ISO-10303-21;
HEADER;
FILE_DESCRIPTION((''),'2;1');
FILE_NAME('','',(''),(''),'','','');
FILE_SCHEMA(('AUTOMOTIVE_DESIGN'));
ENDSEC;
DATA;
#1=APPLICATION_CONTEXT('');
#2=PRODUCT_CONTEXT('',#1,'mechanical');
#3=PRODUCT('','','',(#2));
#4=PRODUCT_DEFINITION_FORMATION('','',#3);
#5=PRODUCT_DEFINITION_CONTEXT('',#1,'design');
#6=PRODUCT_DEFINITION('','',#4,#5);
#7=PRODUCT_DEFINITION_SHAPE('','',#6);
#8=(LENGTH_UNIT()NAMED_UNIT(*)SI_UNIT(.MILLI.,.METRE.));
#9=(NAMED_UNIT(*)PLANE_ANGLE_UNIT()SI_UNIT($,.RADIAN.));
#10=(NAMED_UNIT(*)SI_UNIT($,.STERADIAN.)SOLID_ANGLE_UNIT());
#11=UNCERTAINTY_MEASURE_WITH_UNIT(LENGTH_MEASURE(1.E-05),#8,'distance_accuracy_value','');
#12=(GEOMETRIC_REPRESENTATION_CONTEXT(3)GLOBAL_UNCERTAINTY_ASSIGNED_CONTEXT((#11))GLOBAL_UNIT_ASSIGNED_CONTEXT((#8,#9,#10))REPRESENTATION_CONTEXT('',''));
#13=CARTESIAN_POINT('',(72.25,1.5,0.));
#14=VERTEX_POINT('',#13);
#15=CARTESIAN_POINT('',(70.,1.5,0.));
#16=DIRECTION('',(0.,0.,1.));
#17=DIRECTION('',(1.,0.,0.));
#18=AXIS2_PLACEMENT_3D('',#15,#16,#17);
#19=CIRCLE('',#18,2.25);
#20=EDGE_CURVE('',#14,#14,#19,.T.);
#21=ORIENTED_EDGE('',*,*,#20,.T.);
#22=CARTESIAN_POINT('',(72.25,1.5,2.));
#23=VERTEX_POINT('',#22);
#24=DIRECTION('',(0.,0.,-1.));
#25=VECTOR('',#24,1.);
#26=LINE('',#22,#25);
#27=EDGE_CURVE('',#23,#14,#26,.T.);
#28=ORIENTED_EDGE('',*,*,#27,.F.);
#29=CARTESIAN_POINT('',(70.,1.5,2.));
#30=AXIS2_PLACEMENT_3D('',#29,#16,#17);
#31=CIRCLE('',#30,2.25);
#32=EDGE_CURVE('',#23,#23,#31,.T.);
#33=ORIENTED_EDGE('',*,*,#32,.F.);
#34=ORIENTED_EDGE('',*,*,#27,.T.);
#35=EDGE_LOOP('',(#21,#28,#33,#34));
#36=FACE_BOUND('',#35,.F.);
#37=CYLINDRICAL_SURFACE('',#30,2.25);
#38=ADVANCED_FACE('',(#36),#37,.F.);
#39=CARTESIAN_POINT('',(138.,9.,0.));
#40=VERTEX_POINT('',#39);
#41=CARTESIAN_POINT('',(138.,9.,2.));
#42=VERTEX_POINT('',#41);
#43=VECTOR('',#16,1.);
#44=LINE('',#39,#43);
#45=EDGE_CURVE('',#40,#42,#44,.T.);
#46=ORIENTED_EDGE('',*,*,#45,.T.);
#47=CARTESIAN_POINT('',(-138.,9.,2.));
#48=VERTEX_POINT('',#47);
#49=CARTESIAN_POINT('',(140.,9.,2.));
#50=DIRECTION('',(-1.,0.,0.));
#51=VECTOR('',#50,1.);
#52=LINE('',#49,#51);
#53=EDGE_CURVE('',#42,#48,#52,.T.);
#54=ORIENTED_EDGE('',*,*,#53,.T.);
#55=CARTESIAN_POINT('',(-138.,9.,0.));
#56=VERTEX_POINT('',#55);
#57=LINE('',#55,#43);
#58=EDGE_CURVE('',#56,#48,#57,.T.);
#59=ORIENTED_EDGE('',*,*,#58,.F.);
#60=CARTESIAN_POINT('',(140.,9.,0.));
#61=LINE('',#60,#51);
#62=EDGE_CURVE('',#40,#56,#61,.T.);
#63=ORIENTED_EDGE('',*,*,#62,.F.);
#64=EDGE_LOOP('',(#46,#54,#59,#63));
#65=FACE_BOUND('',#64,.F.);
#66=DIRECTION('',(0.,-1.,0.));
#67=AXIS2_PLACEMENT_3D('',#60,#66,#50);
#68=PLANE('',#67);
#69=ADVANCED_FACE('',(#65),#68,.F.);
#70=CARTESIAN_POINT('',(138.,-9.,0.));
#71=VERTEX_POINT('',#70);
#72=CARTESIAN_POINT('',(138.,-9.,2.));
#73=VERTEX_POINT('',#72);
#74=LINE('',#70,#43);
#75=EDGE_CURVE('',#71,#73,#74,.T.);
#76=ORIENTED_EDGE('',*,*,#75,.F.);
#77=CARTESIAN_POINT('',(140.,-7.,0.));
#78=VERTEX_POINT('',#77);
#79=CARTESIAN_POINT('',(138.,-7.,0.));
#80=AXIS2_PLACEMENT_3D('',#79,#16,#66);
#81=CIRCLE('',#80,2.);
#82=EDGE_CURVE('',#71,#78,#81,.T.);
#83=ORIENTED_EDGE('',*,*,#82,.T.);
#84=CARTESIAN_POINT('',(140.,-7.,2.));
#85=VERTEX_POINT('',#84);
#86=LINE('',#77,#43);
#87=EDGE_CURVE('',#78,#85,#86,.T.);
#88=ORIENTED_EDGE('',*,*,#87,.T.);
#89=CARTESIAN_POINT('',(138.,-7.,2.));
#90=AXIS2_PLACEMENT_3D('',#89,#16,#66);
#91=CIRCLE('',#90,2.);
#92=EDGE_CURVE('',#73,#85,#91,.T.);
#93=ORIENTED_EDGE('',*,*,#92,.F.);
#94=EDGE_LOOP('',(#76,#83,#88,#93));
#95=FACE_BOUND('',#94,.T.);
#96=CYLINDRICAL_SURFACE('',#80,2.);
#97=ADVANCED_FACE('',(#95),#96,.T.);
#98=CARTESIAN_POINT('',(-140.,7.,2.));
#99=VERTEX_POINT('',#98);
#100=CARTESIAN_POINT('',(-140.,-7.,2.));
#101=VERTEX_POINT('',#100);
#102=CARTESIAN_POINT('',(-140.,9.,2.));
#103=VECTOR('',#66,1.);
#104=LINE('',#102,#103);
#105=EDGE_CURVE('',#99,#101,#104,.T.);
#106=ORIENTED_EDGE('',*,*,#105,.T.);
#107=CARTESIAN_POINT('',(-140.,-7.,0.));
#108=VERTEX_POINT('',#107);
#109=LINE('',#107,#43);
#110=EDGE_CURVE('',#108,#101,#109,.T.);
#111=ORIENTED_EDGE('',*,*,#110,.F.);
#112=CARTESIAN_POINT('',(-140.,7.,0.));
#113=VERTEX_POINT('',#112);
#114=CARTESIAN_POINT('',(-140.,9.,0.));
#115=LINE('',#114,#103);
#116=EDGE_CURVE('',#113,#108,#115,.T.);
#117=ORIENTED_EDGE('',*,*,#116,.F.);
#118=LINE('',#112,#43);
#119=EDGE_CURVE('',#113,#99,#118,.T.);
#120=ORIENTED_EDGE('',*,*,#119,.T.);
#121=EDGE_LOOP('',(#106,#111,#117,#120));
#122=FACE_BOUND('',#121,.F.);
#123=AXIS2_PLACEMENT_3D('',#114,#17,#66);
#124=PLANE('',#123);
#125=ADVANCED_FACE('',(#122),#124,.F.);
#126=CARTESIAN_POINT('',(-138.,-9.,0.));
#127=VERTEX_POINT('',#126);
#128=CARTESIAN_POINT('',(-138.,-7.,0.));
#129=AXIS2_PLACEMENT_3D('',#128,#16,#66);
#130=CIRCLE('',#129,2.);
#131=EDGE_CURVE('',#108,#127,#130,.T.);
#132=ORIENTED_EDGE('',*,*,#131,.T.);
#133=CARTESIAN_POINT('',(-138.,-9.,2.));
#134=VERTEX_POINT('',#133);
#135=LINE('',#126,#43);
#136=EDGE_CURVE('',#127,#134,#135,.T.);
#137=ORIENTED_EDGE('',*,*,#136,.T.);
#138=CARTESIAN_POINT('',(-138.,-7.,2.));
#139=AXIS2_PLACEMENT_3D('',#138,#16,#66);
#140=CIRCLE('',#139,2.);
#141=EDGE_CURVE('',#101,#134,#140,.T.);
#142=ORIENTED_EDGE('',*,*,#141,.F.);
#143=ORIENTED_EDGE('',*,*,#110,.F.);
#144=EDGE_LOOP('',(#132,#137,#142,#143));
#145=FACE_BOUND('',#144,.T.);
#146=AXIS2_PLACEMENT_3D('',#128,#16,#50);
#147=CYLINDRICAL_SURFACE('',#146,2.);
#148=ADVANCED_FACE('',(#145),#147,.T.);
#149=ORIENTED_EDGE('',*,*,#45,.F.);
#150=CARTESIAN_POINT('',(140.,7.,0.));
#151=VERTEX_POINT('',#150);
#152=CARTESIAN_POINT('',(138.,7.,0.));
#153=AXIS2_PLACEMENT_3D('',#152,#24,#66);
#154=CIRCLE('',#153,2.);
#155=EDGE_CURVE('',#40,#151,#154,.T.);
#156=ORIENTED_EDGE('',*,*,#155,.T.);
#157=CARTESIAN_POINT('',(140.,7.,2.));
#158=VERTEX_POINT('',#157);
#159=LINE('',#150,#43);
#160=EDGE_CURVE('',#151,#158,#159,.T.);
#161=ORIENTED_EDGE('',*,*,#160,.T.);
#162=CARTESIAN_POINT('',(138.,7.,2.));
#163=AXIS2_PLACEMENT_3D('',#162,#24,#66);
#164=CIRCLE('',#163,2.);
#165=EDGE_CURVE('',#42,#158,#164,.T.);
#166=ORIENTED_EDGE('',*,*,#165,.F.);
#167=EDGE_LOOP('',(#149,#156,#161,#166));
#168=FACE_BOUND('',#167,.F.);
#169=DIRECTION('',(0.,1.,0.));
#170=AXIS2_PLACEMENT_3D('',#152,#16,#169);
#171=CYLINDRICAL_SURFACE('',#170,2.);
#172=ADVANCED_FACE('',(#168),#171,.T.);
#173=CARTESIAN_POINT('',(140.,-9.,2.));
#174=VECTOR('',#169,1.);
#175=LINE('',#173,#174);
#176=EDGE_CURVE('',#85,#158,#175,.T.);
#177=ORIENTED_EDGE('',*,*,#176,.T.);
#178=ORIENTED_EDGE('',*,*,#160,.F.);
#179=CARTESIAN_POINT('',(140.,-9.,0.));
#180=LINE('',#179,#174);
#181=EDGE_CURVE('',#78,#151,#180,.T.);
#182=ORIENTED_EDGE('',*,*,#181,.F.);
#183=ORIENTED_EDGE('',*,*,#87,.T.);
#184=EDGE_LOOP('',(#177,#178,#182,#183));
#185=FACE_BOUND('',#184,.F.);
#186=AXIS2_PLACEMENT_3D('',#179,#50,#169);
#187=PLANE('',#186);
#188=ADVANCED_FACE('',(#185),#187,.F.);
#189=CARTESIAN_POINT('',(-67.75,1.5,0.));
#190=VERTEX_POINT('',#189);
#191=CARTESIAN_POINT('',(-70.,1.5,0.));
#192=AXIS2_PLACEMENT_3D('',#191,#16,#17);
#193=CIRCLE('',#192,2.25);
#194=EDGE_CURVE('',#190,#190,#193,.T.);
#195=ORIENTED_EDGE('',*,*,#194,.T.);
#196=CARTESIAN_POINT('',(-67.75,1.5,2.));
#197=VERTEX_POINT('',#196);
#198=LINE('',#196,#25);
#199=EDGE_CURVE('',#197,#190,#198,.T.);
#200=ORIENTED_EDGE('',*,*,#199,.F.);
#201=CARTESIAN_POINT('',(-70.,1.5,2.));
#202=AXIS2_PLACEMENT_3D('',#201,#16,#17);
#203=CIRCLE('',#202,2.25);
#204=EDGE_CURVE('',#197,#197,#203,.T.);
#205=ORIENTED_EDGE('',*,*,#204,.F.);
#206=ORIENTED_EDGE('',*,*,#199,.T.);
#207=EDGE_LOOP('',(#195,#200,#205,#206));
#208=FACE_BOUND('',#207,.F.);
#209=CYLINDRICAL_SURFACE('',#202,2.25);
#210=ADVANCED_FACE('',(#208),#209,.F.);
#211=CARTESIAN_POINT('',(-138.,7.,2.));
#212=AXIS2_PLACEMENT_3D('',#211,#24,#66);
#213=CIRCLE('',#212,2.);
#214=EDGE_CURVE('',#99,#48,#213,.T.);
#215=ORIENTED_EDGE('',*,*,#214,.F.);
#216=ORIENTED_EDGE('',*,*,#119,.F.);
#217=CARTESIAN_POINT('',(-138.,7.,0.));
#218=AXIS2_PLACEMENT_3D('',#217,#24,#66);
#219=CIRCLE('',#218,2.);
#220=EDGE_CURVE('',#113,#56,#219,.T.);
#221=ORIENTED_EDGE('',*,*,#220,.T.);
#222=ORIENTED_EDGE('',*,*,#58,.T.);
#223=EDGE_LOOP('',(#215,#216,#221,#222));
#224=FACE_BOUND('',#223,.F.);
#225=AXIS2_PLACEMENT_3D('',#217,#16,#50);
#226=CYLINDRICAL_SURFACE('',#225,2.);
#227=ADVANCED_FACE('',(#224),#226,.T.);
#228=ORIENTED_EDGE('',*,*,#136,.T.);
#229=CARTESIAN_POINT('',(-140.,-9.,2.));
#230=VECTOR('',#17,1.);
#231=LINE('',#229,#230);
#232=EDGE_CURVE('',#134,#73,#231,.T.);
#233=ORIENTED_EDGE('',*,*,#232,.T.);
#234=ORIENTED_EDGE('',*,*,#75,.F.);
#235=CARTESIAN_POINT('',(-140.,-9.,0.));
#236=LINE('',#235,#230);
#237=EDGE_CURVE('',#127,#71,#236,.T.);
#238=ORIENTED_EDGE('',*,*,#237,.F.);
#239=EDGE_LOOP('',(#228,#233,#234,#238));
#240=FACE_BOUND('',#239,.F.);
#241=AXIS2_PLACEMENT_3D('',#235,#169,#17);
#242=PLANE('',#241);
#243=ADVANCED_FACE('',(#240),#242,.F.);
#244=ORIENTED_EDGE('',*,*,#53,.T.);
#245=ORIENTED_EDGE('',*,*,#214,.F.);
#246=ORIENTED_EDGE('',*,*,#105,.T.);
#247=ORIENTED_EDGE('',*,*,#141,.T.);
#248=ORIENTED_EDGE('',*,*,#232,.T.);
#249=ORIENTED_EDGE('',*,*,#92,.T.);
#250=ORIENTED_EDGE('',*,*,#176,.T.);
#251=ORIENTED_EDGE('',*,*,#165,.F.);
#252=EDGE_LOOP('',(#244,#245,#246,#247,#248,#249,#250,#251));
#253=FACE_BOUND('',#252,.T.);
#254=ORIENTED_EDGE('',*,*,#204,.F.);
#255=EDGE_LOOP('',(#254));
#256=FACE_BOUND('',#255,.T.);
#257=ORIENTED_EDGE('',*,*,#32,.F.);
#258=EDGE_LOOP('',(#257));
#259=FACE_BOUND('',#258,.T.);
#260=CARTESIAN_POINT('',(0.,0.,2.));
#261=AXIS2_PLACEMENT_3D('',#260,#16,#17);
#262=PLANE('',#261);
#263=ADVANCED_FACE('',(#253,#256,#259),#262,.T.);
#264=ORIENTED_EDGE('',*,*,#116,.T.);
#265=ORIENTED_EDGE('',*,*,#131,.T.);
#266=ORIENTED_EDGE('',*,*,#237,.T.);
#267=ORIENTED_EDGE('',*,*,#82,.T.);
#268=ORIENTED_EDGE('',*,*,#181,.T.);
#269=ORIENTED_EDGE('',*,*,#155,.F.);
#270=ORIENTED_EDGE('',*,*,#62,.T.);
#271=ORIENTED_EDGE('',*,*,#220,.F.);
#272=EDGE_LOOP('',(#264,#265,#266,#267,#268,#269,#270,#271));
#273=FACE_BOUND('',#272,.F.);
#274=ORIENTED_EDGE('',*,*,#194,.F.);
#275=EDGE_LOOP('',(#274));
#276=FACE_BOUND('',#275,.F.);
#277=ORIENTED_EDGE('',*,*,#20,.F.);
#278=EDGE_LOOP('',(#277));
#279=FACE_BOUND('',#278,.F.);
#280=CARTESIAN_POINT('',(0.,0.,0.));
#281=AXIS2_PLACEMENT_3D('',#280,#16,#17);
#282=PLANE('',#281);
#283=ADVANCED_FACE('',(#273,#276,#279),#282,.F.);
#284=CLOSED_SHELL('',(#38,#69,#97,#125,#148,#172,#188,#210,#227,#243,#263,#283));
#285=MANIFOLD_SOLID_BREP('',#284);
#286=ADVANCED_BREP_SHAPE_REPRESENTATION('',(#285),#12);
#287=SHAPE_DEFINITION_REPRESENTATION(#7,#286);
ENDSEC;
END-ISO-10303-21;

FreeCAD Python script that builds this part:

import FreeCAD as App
import Part
import Sketcher


def edges_at(feature, points):
    """Names of the edges that pass closest to the given points."""
    edges = feature.Shape.Edges
    near = lambda p: min(range(len(edges)), key=lambda i: edges[i].distToShape(Part.Vertex(*p))[0])
    return sorted({f"Edge{near(p) + 1}" for p in points})


def add_polygon(sketch, points):
    """Adds a closed chain of lines whose ends are joined by coincident constraints."""
    first, n = sketch.GeometryCount, len(points)
    for a, b in zip(points, points[1:] + points[:1]):
        sketch.addGeometry(Part.LineSegment(App.Vector(*a, 0), App.Vector(*b, 0)), False)
    for i in range(n):
        sketch.addConstraint(Sketcher.Constraint("Coincident", first + i, 2, first + (i + 1) % n, 1))

doc = App.newDocument("Part")
body = doc.addObject("PartDesign::Body", "Body")

sketch1 = body.newObject("Sketcher::SketchObject", "Sketch")
sketch1.AttachmentSupport = (doc.getObject("XY_Plane"), [""])
sketch1.MapMode = "FlatFace"
add_polygon(sketch1, [(-140, 9), (-140, -9), (140, -9), (140, 9)])
sketch1.addConstraint([
    Sketcher.Constraint("Vertical", 0),
    Sketcher.Constraint("Horizontal", 1),
    Sketcher.Constraint("Vertical", 2),
    Sketcher.Constraint("Horizontal", 3),
    Sketcher.Constraint("Symmetric", 0, 2, 2, 2, -1, 1),
    Sketcher.Constraint("DistanceX", 1, 1, 1, 2, 280.0),
    Sketcher.Constraint("DistanceY", 0, 2, 0, 1, 18.0),
])
pad1 = body.newObject("PartDesign::Pad", "Pad")
pad1.Profile = sketch1
pad1.Length = 2

sketch2 = body.newObject("Sketcher::SketchObject", "Sketch001")
sketch2.AttachmentSupport = (doc.getObject("XY_Plane"), [""])
sketch2.MapMode = "FlatFace"
sketch2.AttachmentOffset = App.Placement(App.Vector(0, 0, 2), App.Rotation())
sketch2.addGeometry([
    Part.Circle(App.Vector(-70, 1.5, 0), App.Vector(0, 0, 1), 2.25),
    Part.Circle(App.Vector(70, 1.5, 0), App.Vector(0, 0, 1), 2.25),
], False)
sketch2.addConstraint([
    Sketcher.Constraint("Equal", 0, 1),
    Sketcher.Constraint("Symmetric", 0, 3, 1, 3, -2),
    Sketcher.Constraint("Diameter", 0, 4.5),
    Sketcher.Constraint("DistanceX", 0, 3, -1, 1, 70.0),
    Sketcher.Constraint("DistanceY", -1, 1, 0, 3, 1.5),
])
pocket1 = body.newObject("PartDesign::Pocket", "Pocket")
pocket1.Profile = sketch2
pocket1.Length = 2
doc.recompute()

fillet = body.newObject("PartDesign::Fillet", "Fillet")
fillet.Base = (pocket1, edges_at(pocket1, [
    (-140, 9, 1),
    (-140, -9, 1),
    (140, 9, 1),
    (140, -9, 1),
]))
fillet.Radius = 2

doc.recompute()
